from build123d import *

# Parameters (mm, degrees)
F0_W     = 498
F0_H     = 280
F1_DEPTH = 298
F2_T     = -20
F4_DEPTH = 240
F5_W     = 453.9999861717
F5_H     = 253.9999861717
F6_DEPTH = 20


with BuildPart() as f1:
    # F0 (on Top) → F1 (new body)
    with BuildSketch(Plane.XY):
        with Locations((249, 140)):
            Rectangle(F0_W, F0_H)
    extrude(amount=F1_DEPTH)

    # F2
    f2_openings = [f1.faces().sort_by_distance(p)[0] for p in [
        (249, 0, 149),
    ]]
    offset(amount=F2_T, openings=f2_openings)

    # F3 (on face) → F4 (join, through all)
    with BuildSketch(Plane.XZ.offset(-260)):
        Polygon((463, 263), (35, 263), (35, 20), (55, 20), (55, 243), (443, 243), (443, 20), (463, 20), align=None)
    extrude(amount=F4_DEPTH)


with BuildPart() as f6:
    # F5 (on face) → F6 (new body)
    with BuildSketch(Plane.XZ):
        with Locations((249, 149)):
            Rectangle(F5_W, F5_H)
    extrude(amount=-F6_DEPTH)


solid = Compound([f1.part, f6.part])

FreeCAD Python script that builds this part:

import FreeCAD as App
import Part
import Sketcher

V = App.Vector


def faces_at(feature, points):
    """Names of the faces that lie closest to the given points."""
    faces = feature.Shape.Faces
    near = lambda p: min(range(len(faces)), key=lambda i: faces[i].distToShape(Part.Vertex(*p))[0])
    return sorted({f"Face{near(p) + 1}" for p in points})


def add_polygon(sketch, points):
    """Adds a closed chain of lines whose ends are joined by coincident constraints."""
    first, n = sketch.GeometryCount, len(points)
    for a, b in zip(points, points[1:] + points[:1]):
        sketch.addGeometry(Part.LineSegment(App.Vector(*a, 0), App.Vector(*b, 0)), False)
    for i in range(n):
        sketch.addConstraint(Sketcher.Constraint("Coincident", first + i, 2, first + (i + 1) % n, 1))

doc = App.newDocument("Part")
body = doc.addObject("PartDesign::Body", "Body")

# Sketch on XY plane
sketch1 = body.newObject("Sketcher::SketchObject", "Sketch")
sketch1.AttachmentSupport = (doc.getObject("XY_Plane"), [""])
sketch1.MapMode = "FlatFace"
add_polygon(sketch1, [(0, 280), (0, 0), (498, 0), (498, 280)])  # lines 0-3
sketch1.addConstraint([
    Sketcher.Constraint("Vertical", 0),
    Sketcher.Constraint("Horizontal", 1),
    Sketcher.Constraint("Vertical", 2),
    Sketcher.Constraint("Horizontal", 3),
    Sketcher.Constraint("Coincident", 0, 2, -1, 1),
    Sketcher.Constraint("DistanceX", 1, 1, 1, 2, 498.0),
    Sketcher.Constraint("DistanceY", 0, 2, 0, 1, 280.0),
])
pad1 = body.newObject("PartDesign::Pad", "Pad")
pad1.Profile = sketch1
pad1.Length = 298
doc.recompute()

thickness = body.newObject("PartDesign::Thickness", "Thickness")
thickness.Base = (pad1, faces_at(pad1, [(249, 0, 149)]))
thickness.Value = 20
thickness.Reversed = True
thickness.Join = "Arc"

# Sketch on XZ plane
sketch2 = body.newObject("Sketcher::SketchObject", "Sketch001")
sketch2.AttachmentSupport = (doc.getObject("XZ_Plane"), [""])
sketch2.MapMode = "FlatFace"
sketch2.AttachmentOffset = App.Placement(V(0, 0, -260), App.Rotation())
add_polygon(sketch2, [(463, 263), (35, 263), (35, 20), (55, 20), (55, 243), (443, 243), (443, 20), (463, 20)])  # lines 0-7
sketch2.addConstraint([
    Sketcher.Constraint("Horizontal", 0),
    Sketcher.Constraint("Vertical", 1),
    Sketcher.Constraint("Horizontal", 2),
    Sketcher.Constraint("Vertical", 3),
    Sketcher.Constraint("Horizontal", 4),
    Sketcher.Constraint("Vertical", 5),
    Sketcher.Constraint("Horizontal", 6),
    Sketcher.Constraint("Vertical", 7),
    Sketcher.Constraint("Horizontal", 2, 2, 5, 2),
    Sketcher.Constraint("Equal", 2, 6),
    Sketcher.Constraint("DistanceX", 0, 2, 0, 1, 428.0),
    Sketcher.Constraint("DistanceX", 2, 1, 2, 2, 20.0),
    Sketcher.Constraint("DistanceY", 1, 2, 1, 1, 243.0),
    Sketcher.Constraint("DistanceY", 3, 1, 3, 2, 223.0),
    Sketcher.Constraint("DistanceX", -1, 1, 0, 2, 35.0),
    Sketcher.Constraint("DistanceY", -1, 1, 0, 2, 263.0),
])
pad2 = body.newObject("PartDesign::Pad", "Pad001")
pad2.Profile = sketch2
pad2.Length = 240
body2 = doc.addObject("PartDesign::Body", "Body001")

# Sketch on XZ plane
sketch3 = body2.newObject("Sketcher::SketchObject", "Sketch002")
sketch3.AttachmentSupport = (doc.getObject("XZ_Plane001"), [""])
sketch3.MapMode = "FlatFace"
add_polygon(sketch3, [(22, 276), (22, 22), (476, 22), (476, 276)])  # lines 0-3
sketch3.addConstraint([
    Sketcher.Constraint("Vertical", 0),
    Sketcher.Constraint("Horizontal", 1),
    Sketcher.Constraint("Vertical", 2),
    Sketcher.Constraint("Horizontal", 3),
    Sketcher.Constraint("DistanceX", 1, 1, 1, 2, 453.999986),
    Sketcher.Constraint("DistanceY", 0, 2, 0, 1, 253.999986),
    Sketcher.Constraint("DistanceX", -1, 1, 0, 2, 22.000007),
    Sketcher.Constraint("DistanceY", -1, 1, 0, 2, 22.000007),
])
pad3 = body2.newObject("PartDesign::Pad", "Pad002")
pad3.Profile = sketch3
pad3.Length = 20
pad3.Reversed = True

doc.recompute()
